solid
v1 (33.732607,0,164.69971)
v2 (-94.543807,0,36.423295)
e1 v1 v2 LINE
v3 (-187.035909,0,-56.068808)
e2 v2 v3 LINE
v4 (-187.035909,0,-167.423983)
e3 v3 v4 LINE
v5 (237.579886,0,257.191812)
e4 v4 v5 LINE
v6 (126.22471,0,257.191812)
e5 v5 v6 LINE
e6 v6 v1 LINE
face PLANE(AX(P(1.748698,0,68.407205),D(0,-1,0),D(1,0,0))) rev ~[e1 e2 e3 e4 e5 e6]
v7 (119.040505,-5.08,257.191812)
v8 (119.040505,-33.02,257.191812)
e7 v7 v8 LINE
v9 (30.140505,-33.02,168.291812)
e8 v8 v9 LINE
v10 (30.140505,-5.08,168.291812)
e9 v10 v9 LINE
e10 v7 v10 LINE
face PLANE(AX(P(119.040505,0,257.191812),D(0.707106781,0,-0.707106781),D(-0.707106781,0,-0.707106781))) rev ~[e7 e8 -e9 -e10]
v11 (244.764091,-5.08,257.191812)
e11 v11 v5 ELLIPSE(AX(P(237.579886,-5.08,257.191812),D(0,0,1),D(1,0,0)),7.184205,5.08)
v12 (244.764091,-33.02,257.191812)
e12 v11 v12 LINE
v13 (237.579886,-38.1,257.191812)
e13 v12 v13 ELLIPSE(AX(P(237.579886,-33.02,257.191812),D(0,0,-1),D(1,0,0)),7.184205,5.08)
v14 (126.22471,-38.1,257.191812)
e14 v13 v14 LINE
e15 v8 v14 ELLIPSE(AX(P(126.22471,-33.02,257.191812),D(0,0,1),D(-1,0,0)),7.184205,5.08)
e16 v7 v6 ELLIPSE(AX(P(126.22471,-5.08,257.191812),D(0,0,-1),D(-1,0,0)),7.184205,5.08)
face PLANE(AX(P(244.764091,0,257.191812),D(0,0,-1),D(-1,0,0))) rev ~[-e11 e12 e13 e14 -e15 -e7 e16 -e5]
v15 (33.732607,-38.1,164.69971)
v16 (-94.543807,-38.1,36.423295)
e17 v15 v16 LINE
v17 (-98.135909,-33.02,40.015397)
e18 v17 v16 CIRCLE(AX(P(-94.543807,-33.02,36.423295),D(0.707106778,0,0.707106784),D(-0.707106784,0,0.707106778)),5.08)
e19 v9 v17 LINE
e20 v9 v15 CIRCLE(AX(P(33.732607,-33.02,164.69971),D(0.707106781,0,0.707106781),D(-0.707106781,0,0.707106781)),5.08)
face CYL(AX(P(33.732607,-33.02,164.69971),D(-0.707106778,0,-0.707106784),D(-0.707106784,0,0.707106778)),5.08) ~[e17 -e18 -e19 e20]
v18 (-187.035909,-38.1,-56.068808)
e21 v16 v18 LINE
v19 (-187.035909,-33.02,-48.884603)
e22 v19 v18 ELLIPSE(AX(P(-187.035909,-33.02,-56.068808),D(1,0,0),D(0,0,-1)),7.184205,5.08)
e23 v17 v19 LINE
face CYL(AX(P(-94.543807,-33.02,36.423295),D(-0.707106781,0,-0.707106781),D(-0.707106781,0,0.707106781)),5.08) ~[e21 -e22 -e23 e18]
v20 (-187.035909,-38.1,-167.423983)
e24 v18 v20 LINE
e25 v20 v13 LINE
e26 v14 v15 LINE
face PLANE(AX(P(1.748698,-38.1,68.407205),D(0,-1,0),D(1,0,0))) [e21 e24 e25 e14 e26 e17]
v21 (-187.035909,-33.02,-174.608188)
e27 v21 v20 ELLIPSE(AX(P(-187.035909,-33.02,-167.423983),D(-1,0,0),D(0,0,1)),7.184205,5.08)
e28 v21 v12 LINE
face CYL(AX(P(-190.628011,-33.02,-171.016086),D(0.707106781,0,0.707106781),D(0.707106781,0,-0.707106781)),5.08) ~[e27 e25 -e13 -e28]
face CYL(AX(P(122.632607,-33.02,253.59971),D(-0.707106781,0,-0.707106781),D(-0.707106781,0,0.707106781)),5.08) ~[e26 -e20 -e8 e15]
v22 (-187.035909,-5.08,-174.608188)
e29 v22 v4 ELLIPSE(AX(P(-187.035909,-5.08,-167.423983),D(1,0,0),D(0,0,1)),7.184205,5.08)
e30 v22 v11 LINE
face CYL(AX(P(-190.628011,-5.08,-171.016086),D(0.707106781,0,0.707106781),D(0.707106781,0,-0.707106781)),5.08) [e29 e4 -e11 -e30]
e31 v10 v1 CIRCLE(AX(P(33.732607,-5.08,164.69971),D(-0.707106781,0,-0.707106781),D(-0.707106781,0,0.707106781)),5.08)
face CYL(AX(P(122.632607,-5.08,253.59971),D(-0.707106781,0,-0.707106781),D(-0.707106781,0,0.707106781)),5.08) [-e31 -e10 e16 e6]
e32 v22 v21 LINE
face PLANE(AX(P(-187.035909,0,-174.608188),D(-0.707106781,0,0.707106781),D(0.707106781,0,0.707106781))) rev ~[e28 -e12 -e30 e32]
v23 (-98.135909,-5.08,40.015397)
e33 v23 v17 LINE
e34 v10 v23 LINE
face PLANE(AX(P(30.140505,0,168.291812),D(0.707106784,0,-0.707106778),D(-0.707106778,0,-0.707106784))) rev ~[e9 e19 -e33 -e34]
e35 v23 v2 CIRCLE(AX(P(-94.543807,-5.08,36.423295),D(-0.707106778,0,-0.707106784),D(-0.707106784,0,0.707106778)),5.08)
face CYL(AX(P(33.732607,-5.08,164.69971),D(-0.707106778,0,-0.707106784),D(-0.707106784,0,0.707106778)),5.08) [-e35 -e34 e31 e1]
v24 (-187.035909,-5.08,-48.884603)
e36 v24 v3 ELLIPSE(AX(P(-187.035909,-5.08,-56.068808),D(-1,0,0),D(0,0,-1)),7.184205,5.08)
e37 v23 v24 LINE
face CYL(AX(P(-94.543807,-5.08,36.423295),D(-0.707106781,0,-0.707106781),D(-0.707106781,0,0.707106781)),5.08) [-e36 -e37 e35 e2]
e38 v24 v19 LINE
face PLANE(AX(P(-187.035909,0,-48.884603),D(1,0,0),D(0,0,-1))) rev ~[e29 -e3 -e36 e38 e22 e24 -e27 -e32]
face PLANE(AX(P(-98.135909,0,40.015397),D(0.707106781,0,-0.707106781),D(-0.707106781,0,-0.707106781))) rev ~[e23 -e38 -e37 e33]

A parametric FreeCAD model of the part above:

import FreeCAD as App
import Part
import Sketcher
Q = App.Units.Quantity


def edges_at(feature, points):
    """Names of the edges that pass closest to the given points."""
    edges = feature.Shape.Edges
    near = lambda p: min(range(len(edges)), key=lambda i: edges[i].distToShape(Part.Vertex(*p))[0])
    return sorted({f"Edge{near(p) + 1}" for p in points})


def add_polygon(sketch, points):
    """Adds a closed chain of lines whose ends are joined by coincident constraints."""
    first, n = sketch.GeometryCount, len(points)
    for a, b in zip(points, points[1:] + points[:1]):
        sketch.addGeometry(Part.LineSegment(App.Vector(*a, 0), App.Vector(*b, 0)), False)
    for i in range(n):
        sketch.addConstraint(Sketcher.Constraint("Coincident", first + i, 2, first + (i + 1) % n, 1))

doc = App.newDocument("Part")
body = doc.addObject("PartDesign::Body", "Body")

sketch1 = body.newObject("Sketcher::SketchObject", "Sketch")
sketch1.AttachmentSupport = (doc.getObject("XZ_Plane"), [""])
sketch1.MapMode = "FlatFace"
add_polygon(sketch1, [(-187.035909, -48.884603), (-187.035909, -174.608188), (244.764091, 257.191812), (119.040505, 257.191812), (30.140505, 168.291812), (-98.135909, 40.015397)])
sketch1.addConstraint(Sketcher.Constraint("Vertical", 0))
sketch1.addConstraint(Sketcher.Constraint("Horizontal", 2))
sketch1.addConstraint(Sketcher.Constraint("Parallel", 1, 3))
sketch1.addConstraint(Sketcher.Constraint("Parallel", 3, 4))
sketch1.addConstraint(Sketcher.Constraint("Parallel", 4, 5))
sketch1.addConstraint(Sketcher.Constraint("Equal", 2, 0))
sketch1.addConstraint(Sketcher.Constraint("Equal", 3, 5))
sketch1.addConstraint(Sketcher.Constraint("DistanceX", 0, 2, 1, 2, Q("17 in")))
sketch1.addConstraint(Sketcher.Constraint("DistanceX", 3, 2, 2, 2, Q("3.5 in")))
sketch1.addConstraint(Sketcher.Constraint("DistanceX", 2, 2, 2, 1, 125.723586))
sketch1.addConstraint(Sketcher.Constraint("DistanceX", 0, 2, -1, 1, 187.035909))
sketch1.addConstraint(Sketcher.Constraint("DistanceY", 0, 2, -1, 1, 174.608188))
pad1 = body.newObject("PartDesign::Pad", "Pad")
pad1.Profile = sketch1
pad1.Length = Q("1.5 in")
doc.recompute()

fillet = body.newObject("PartDesign::Fillet", "Fillet")
fillet.Base = (pad1, edges_at(pad1, [
    (-33.998, 0, 104.154),
    (-33.998, -38.1, 104.154),
    (28.864, -38.1, 41.292),
    (28.864, 0, 41.292),
]))
fillet.Radius = Q("0.2 in")

doc.recompute()
